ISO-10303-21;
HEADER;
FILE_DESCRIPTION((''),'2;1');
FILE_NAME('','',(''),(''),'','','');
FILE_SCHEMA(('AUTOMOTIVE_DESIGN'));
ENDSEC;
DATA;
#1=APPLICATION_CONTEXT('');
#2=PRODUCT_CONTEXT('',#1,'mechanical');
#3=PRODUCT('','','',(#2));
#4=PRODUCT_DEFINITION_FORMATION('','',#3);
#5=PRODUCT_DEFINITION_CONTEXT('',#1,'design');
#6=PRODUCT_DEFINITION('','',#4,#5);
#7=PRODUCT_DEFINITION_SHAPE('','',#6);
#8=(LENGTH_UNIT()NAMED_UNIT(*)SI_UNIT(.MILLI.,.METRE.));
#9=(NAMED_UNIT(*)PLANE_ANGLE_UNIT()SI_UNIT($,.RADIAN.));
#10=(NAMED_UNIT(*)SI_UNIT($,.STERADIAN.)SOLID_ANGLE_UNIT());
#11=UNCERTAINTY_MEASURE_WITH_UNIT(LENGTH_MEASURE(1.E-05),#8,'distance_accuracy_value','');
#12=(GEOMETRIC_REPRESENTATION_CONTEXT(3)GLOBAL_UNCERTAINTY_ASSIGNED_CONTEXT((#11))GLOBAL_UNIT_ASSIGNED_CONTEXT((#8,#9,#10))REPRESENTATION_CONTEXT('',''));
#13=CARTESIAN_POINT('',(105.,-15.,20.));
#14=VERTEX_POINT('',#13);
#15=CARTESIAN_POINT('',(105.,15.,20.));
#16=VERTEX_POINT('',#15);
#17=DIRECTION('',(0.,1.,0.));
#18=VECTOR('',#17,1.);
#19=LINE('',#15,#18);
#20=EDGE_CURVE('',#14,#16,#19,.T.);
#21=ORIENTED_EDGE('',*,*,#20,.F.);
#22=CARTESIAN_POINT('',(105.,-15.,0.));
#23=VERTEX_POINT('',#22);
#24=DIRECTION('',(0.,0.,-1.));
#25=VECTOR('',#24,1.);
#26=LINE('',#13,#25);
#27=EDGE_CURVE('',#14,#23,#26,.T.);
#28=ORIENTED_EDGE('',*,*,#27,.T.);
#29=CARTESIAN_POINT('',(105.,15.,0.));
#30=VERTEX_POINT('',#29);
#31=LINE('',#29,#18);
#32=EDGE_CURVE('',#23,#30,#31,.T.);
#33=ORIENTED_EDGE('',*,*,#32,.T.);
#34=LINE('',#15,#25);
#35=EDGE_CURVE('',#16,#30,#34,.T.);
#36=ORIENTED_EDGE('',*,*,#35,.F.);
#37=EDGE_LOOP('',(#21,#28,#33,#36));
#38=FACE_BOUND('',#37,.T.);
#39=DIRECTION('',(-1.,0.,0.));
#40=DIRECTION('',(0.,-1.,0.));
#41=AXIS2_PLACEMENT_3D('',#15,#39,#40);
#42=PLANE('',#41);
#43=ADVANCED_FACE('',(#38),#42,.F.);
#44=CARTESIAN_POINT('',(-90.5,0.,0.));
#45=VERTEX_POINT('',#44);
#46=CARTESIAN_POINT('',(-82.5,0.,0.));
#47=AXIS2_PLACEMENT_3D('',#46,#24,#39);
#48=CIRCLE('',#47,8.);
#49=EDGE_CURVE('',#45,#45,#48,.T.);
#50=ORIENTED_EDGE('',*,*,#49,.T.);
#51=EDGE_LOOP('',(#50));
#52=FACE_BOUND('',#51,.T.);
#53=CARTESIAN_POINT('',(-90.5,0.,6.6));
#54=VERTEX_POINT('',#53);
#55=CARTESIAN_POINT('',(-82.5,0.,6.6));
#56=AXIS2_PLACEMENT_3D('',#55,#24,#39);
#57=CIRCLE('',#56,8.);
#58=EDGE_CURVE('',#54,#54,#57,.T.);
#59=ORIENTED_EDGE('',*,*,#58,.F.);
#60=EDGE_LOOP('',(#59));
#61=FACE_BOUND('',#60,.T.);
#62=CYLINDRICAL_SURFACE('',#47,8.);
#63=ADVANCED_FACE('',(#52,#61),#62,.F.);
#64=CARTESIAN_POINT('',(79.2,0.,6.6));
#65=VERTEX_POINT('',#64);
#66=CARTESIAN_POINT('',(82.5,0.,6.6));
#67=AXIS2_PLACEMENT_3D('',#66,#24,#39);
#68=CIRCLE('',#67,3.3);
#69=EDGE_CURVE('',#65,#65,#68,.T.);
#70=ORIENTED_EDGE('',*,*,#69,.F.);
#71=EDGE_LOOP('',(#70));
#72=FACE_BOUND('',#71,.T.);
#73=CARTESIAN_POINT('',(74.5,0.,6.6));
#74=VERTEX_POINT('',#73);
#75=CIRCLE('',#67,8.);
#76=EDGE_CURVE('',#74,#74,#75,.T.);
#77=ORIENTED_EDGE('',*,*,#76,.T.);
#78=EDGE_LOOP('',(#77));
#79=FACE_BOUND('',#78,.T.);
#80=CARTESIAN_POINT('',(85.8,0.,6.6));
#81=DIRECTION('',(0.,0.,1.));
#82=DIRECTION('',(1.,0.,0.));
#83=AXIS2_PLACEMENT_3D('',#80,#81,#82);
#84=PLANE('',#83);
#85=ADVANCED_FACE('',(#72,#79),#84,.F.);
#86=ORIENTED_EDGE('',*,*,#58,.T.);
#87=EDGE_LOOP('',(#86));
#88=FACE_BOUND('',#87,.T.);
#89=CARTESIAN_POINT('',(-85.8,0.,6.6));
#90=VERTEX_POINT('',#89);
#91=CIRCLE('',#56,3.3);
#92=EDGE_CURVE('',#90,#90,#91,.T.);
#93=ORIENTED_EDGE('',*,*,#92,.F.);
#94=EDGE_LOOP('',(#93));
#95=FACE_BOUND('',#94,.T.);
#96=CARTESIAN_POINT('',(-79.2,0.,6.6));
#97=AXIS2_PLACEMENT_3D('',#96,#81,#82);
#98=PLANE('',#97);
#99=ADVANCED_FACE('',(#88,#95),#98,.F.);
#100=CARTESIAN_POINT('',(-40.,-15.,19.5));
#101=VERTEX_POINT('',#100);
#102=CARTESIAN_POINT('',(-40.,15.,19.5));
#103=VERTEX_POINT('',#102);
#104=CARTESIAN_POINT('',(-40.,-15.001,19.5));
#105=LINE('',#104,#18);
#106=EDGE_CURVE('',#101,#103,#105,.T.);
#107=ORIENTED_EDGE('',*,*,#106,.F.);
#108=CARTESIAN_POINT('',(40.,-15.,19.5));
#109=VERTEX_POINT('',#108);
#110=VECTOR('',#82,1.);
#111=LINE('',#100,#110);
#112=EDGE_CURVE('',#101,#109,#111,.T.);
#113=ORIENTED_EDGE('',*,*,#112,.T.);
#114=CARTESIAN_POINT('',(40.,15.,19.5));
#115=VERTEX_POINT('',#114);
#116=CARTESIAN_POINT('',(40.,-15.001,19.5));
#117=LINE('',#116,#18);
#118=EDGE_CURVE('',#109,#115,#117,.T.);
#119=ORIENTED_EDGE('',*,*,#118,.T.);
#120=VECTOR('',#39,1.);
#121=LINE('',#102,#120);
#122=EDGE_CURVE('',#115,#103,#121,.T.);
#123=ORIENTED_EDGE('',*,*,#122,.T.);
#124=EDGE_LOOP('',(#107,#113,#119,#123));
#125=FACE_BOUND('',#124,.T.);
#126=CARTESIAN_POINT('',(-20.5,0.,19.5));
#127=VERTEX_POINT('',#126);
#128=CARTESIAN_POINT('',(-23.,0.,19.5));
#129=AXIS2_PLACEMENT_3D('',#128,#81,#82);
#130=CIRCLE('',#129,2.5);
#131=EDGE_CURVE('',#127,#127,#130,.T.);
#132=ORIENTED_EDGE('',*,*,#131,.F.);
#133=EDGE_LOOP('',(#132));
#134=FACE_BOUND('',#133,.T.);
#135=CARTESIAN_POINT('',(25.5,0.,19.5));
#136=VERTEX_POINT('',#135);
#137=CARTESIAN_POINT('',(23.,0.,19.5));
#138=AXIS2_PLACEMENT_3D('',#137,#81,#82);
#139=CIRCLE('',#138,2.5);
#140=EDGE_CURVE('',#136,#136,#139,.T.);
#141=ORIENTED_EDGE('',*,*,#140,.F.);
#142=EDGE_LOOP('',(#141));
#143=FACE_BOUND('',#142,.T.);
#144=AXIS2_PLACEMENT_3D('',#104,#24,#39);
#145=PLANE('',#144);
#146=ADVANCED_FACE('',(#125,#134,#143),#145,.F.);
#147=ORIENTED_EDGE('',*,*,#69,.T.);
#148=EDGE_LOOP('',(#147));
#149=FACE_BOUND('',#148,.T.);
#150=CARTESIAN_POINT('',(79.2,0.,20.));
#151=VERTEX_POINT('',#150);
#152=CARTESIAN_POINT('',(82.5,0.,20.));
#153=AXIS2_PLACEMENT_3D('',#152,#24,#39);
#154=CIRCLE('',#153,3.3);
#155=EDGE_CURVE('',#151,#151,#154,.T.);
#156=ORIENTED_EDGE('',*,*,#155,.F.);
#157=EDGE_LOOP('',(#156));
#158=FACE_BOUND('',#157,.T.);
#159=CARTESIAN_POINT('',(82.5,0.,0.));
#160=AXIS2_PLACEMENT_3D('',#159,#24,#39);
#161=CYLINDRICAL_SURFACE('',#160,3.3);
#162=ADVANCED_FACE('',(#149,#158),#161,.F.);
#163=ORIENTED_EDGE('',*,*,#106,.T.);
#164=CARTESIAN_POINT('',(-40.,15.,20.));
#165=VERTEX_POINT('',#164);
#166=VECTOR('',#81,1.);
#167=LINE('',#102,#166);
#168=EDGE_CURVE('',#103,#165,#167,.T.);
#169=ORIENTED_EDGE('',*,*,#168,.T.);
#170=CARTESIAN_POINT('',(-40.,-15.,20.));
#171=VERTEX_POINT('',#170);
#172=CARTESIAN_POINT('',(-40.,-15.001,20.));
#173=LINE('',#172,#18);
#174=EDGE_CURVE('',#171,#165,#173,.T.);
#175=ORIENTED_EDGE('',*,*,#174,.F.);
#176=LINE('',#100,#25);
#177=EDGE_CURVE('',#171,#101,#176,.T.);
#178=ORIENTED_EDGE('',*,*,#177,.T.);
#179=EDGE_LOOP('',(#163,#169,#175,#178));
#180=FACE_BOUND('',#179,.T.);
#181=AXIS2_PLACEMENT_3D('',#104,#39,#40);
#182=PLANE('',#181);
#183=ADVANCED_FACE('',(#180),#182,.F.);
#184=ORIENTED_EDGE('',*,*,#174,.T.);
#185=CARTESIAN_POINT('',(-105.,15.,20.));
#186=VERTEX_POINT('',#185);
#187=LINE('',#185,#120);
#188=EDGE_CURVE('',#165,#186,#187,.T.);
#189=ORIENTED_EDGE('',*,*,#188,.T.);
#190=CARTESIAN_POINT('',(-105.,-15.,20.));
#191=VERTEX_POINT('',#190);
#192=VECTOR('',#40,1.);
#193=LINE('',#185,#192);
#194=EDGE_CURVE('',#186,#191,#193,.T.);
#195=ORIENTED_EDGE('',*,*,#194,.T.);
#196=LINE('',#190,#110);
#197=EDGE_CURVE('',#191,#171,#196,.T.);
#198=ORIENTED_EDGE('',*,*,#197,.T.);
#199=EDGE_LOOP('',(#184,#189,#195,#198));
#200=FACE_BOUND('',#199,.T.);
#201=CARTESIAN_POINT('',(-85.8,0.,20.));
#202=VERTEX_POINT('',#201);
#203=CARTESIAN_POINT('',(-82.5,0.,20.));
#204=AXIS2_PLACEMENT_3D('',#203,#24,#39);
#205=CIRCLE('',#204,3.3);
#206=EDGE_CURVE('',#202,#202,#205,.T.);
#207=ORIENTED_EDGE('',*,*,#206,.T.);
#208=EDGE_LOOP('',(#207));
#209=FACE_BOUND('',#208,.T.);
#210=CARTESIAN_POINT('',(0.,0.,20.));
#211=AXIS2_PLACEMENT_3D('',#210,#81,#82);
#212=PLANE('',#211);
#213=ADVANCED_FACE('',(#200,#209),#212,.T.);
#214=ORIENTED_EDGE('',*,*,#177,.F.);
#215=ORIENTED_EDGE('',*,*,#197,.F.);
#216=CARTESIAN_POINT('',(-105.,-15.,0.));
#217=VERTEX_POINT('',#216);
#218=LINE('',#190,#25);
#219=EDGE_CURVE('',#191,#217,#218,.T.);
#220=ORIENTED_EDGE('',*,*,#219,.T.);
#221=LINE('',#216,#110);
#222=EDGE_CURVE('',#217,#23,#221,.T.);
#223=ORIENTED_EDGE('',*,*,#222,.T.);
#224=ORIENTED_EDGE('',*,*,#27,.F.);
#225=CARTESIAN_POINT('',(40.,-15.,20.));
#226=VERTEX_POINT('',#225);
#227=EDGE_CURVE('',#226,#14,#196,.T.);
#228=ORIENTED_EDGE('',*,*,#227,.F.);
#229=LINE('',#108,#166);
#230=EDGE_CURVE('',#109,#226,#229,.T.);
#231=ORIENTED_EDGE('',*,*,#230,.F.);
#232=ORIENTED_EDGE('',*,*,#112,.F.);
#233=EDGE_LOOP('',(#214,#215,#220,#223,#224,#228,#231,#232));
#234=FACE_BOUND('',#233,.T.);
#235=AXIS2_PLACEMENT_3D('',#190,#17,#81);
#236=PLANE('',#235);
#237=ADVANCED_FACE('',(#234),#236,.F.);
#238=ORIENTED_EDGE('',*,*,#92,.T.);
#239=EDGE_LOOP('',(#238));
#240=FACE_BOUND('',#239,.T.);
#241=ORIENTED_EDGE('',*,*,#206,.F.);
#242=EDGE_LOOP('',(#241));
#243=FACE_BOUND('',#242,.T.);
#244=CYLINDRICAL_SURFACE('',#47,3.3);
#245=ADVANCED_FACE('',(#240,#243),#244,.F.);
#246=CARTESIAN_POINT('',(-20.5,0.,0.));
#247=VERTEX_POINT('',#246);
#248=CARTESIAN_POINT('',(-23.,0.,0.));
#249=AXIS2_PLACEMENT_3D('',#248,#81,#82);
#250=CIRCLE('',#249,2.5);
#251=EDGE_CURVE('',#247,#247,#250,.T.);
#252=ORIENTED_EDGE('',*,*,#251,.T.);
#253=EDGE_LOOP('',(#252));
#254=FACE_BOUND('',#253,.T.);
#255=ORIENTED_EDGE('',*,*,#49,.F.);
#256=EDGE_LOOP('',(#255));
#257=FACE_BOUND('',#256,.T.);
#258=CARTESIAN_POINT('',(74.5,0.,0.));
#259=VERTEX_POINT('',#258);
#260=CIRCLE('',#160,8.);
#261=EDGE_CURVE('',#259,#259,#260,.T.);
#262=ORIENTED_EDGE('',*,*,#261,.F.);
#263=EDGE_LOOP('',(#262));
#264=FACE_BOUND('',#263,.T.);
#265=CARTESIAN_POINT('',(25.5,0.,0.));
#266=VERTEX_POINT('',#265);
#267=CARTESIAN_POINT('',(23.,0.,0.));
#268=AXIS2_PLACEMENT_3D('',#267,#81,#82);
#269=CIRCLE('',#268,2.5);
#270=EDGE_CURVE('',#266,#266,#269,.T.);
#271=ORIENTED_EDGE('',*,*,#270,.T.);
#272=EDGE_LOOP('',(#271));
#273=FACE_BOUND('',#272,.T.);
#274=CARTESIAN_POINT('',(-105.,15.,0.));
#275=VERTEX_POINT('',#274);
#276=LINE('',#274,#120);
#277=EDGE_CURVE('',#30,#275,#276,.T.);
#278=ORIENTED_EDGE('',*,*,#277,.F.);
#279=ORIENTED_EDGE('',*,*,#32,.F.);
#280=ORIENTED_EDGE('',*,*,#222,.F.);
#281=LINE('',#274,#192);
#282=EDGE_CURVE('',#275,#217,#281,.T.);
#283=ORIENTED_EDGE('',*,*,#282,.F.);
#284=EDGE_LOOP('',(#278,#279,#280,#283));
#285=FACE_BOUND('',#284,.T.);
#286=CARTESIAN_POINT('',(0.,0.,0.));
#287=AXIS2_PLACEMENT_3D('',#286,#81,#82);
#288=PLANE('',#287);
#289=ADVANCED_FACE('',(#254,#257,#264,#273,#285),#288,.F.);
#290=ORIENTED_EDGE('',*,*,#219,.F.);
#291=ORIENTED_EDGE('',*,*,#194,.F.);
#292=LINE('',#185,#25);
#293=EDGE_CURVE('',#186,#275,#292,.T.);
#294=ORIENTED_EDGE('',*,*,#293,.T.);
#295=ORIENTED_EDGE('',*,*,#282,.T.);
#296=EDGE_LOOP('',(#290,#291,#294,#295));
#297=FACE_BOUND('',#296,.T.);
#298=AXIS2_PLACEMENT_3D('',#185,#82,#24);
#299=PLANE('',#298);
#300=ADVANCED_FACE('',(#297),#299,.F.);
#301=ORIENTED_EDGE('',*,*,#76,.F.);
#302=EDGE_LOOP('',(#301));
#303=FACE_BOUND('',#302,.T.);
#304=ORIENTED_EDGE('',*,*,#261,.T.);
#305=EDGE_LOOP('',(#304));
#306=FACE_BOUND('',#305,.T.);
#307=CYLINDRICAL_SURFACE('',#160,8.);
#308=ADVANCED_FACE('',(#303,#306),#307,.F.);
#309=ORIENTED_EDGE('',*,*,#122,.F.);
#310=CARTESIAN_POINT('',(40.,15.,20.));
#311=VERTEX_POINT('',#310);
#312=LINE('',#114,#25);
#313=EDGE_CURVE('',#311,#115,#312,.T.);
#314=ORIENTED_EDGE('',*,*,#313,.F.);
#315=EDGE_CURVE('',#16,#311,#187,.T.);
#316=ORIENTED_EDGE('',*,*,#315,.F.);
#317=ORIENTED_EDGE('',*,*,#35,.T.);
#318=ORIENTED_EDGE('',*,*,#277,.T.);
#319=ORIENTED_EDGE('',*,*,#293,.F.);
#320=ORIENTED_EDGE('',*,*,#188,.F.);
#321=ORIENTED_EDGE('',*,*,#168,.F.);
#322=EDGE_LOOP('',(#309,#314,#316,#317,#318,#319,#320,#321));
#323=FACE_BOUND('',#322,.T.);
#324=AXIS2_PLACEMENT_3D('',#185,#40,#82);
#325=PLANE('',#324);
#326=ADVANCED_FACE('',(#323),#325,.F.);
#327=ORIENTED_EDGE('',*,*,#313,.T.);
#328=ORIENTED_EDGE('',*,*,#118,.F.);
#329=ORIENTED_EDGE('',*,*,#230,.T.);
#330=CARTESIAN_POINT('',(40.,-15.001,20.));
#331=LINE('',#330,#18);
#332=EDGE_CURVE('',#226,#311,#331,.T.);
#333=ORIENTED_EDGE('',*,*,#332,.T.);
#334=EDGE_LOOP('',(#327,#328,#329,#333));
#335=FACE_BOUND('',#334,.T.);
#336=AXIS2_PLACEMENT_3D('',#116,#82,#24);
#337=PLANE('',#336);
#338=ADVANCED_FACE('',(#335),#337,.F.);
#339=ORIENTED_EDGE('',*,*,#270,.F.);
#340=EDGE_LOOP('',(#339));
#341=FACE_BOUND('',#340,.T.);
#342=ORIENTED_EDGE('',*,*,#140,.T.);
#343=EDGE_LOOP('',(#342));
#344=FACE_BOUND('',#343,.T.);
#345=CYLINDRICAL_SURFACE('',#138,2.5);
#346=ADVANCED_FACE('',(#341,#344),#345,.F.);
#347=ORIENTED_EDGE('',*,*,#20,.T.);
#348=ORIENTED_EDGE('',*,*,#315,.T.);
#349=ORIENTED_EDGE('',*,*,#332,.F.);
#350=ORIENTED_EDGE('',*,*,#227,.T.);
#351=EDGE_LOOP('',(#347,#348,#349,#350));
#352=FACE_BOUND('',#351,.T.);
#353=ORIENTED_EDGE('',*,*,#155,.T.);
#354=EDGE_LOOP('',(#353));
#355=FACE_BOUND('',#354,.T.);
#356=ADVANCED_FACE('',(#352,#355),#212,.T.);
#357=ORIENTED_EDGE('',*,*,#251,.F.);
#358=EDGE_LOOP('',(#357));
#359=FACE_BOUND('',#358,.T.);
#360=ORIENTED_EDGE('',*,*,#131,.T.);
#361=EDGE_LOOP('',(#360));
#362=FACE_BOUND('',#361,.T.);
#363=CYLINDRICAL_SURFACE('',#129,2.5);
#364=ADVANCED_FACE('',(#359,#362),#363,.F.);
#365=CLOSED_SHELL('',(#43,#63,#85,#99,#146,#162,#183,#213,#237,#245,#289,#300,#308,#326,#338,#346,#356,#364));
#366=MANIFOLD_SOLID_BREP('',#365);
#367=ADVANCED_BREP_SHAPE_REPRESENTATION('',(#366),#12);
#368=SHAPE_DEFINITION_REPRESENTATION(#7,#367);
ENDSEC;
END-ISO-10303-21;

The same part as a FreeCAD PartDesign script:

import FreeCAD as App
import Part
import Sketcher
from FreeCAD import Vector

doc = App.newDocument("Part")
body = doc.addObject("PartDesign::Body", "Body")

sketch1 = body.newObject("Sketcher::SketchObject", "Sketch")
sketch1.AttachmentSupport = (doc.getObject("XY_Plane"), [""])
sketch1.MapMode = "FlatFace"
sketch1.addGeometry(Part.LineSegment(Vector(-105, 15, 0), Vector(-105, -15, 0)), False)
sketch1.addGeometry(Part.LineSegment(Vector(-105, -15, 0), Vector(105, -15, 0)), False)
sketch1.addGeometry(Part.LineSegment(Vector(105, -15, 0), Vector(105, 15, 0)), False)
sketch1.addGeometry(Part.LineSegment(Vector(105, 15, 0), Vector(-105, 15, 0)), False)
sketch1.addConstraint(Sketcher.Constraint("Coincident", 0, 2, 1, 1))
sketch1.addConstraint(Sketcher.Constraint("Coincident", 1, 2, 2, 1))
sketch1.addConstraint(Sketcher.Constraint("Coincident", 2, 2, 3, 1))
sketch1.addConstraint(Sketcher.Constraint("Coincident", 3, 2, 0, 1))
sketch1.addConstraint(Sketcher.Constraint("Vertical", 0))
sketch1.addConstraint(Sketcher.Constraint("Horizontal", 1))
sketch1.addConstraint(Sketcher.Constraint("Vertical", 2))
sketch1.addConstraint(Sketcher.Constraint("Horizontal", 3))
sketch1.addConstraint(Sketcher.Constraint("Symmetric", 0, 2, 2, 2, -1, 1))
sketch1.addConstraint(Sketcher.Constraint("DistanceX", 1, 1, 1, 2, 210.0))
sketch1.addConstraint(Sketcher.Constraint("DistanceY", 0, 2, 0, 1, 30.0))
pad1 = body.newObject("PartDesign::Pad", "Pad")
pad1.Profile = sketch1
pad1.Length = 20

sketch2 = body.newObject("Sketcher::SketchObject", "Sketch001")
sketch2.AttachmentSupport = (doc.getObject("XY_Plane"), [""])
sketch2.MapMode = "FlatFace"
sketch2.addGeometry(Part.Circle(Vector(-82.5, 0, 0), Vector(0, 0, 1), 3.3), False)
sketch2.addGeometry(Part.Circle(Vector(82.5, 0, 0), Vector(0, 0, 1), 3.3), False)
sketch2.addConstraint(Sketcher.Constraint("Equal", 0, 1))
sketch2.addConstraint(Sketcher.Constraint("Symmetric", 0, 3, 1, 3, -1, 1))
sketch2.addConstraint(Sketcher.Constraint("PointOnObject", 0, 3, -1))
sketch2.addConstraint(Sketcher.Constraint("Diameter", 0, 6.6))
sketch2.addConstraint(Sketcher.Constraint("DistanceX", 0, 3, 1, 3, 165.0))
doc.recompute()
hole = body.newObject("PartDesign::Hole", "Hole")
hole.Profile = sketch2
hole.ThreadType = "None"
hole.Diameter = 6.6
hole.DepthType = "ThroughAll"
hole.HoleCutType = "Counterbore"
hole.HoleCutDiameter = 16
hole.HoleCutDepth = 6.6
hole.Reversed = True

sketch3 = body.newObject("Sketcher::SketchObject", "Sketch002")
sketch3.AttachmentSupport = (doc.getObject("XZ_Plane"), [""])
sketch3.MapMode = "FlatFace"
sketch3.AttachmentOffset = App.Placement(Vector(0, 0, -15), App.Rotation())
sketch3.addGeometry(Part.LineSegment(Vector(-40, 19.5, 0), Vector(-40, 20, 0)), False)
sketch3.addGeometry(Part.LineSegment(Vector(-40, 20, 0), Vector(40, 20, 0)), False)
sketch3.addGeometry(Part.LineSegment(Vector(40, 20, 0), Vector(40, 19.5, 0)), False)
sketch3.addGeometry(Part.LineSegment(Vector(40, 19.5, 0), Vector(-40, 19.5, 0)), False)
sketch3.addConstraint(Sketcher.Constraint("Coincident", 0, 2, 1, 1))
sketch3.addConstraint(Sketcher.Constraint("Coincident", 1, 2, 2, 1))
sketch3.addConstraint(Sketcher.Constraint("Coincident", 2, 2, 3, 1))
sketch3.addConstraint(Sketcher.Constraint("Coincident", 3, 2, 0, 1))
sketch3.addConstraint(Sketcher.Constraint("Vertical", 0))
sketch3.addConstraint(Sketcher.Constraint("Horizontal", 1))
sketch3.addConstraint(Sketcher.Constraint("Vertical", 2))
sketch3.addConstraint(Sketcher.Constraint("Horizontal", 3))
sketch3.addConstraint(Sketcher.Constraint("DistanceX", 1, 1, 1, 2, 80.0))
sketch3.addConstraint(Sketcher.Constraint("DistanceY", 0, 1, 0, 2, 0.5))
sketch3.addConstraint(Sketcher.Constraint("DistanceX", 0, 2, -1, 1, 40.0))
sketch3.addConstraint(Sketcher.Constraint("DistanceY", -1, 1, 0, 2, 20.0))
pocket1 = body.newObject("PartDesign::Pocket", "Pocket")
pocket1.Profile = sketch3
pocket1.Type = "UpToFirst"
pocket1.Reversed = True

sketch4 = body.newObject("Sketcher::SketchObject", "Sketch003")
sketch4.AttachmentSupport = (doc.getObject("XY_Plane"), [""])
sketch4.MapMode = "FlatFace"
sketch4.AttachmentOffset = App.Placement(Vector(0, 0, 19.5), App.Rotation())
sketch4.addGeometry(Part.Circle(Vector(-23, 0, 0), Vector(0, 0, 1), 2.5), False)
sketch4.addGeometry(Part.Circle(Vector(23, 0, 0), Vector(0, 0, 1), 2.5), False)
sketch4.addConstraint(Sketcher.Constraint("Equal", 0, 1))
sketch4.addConstraint(Sketcher.Constraint("Symmetric", 0, 3, 1, 3, -1, 1))
sketch4.addConstraint(Sketcher.Constraint("PointOnObject", 0, 3, -1))
sketch4.addConstraint(Sketcher.Constraint("Diameter", 0, 5.0))
sketch4.addConstraint(Sketcher.Constraint("DistanceX", 0, 3, -1, 1, 23.0))
doc.recompute()
hole2 = body.newObject("PartDesign::Hole", "Hole001")
hole2.Profile = sketch4
hole2.ThreadType = "None"
hole2.Diameter = 5
hole2.DepthType = "ThroughAll"

doc.recompute()
